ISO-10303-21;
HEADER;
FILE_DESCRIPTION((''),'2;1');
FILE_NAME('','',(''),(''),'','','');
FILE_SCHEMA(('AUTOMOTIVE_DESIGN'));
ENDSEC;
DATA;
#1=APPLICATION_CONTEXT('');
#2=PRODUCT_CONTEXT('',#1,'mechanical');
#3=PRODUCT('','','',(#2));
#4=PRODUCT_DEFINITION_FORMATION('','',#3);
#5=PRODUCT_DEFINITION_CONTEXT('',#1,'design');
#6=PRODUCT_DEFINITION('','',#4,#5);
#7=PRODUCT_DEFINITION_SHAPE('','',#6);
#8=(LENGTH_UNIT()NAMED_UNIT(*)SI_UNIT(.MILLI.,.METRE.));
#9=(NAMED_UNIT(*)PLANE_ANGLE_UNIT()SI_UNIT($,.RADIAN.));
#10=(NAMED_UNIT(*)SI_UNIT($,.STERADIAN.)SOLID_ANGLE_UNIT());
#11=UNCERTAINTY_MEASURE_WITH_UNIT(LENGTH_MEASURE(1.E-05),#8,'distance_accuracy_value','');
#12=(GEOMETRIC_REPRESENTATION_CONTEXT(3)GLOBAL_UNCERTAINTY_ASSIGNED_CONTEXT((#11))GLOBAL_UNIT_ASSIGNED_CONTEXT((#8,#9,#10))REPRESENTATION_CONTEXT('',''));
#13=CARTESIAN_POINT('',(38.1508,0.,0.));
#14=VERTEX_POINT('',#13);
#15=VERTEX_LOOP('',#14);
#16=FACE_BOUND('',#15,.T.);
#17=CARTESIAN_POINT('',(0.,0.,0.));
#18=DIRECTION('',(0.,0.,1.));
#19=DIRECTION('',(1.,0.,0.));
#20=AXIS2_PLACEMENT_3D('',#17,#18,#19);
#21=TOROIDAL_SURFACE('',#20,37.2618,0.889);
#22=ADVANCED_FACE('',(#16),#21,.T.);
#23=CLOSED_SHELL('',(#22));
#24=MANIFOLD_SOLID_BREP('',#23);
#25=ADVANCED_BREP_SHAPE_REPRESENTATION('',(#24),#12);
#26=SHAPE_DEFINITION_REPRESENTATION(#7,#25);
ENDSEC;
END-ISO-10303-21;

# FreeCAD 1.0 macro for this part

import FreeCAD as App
import Part
import Sketcher

V = App.Vector
Q = App.Units.Quantity

doc = App.newDocument("Part")
params = doc.addObject("Spreadsheet::Sheet", "Params")
for row, (alias, value) in enumerate([
    ("sketch1_diameter", "0.07 in"),
    ("revolution_angle", "360 deg"),
], start=1):
    params.set(f"A{row}", alias)
    params.set(f"B{row}", "=" + value)
    params.setAlias(f"B{row}", alias)

body = doc.addObject("PartDesign::Body", "Body")

# Sketch on YZ plane
sketch1 = doc.addObject("Sketcher::SketchObject", "Sketch")
body.addObject(sketch1)
sketch1.AttachmentSupport = (doc.YZ_Plane, [""])
sketch1.MapMode = "FlatFace"
sketch1.addGeometry(Part.Circle(V(-37.3, 0, 0), V(0, 0, 1), 0.9), False)
sketch1.addConstraint(Sketcher.Constraint("PointOnObject", 0, 3, -1))
sketch1.addConstraint(Sketcher.Constraint("Diameter", 0, Q("0.07 in")))
sketch1.addConstraint(Sketcher.Constraint("DistanceX", 0, 3, -1, 1, Q("1.467 in")))
sketch1.setExpression("Constraints[1]", "Params.sketch1_diameter")
revolution = doc.addObject("PartDesign::Revolution", "Revolution")
body.addObject(revolution)
revolution.Profile = sketch1
revolution.ReferenceAxis = (sketch1, ["V_Axis"])
revolution.setExpression("Angle", "Params.revolution_angle")

doc.recompute()
